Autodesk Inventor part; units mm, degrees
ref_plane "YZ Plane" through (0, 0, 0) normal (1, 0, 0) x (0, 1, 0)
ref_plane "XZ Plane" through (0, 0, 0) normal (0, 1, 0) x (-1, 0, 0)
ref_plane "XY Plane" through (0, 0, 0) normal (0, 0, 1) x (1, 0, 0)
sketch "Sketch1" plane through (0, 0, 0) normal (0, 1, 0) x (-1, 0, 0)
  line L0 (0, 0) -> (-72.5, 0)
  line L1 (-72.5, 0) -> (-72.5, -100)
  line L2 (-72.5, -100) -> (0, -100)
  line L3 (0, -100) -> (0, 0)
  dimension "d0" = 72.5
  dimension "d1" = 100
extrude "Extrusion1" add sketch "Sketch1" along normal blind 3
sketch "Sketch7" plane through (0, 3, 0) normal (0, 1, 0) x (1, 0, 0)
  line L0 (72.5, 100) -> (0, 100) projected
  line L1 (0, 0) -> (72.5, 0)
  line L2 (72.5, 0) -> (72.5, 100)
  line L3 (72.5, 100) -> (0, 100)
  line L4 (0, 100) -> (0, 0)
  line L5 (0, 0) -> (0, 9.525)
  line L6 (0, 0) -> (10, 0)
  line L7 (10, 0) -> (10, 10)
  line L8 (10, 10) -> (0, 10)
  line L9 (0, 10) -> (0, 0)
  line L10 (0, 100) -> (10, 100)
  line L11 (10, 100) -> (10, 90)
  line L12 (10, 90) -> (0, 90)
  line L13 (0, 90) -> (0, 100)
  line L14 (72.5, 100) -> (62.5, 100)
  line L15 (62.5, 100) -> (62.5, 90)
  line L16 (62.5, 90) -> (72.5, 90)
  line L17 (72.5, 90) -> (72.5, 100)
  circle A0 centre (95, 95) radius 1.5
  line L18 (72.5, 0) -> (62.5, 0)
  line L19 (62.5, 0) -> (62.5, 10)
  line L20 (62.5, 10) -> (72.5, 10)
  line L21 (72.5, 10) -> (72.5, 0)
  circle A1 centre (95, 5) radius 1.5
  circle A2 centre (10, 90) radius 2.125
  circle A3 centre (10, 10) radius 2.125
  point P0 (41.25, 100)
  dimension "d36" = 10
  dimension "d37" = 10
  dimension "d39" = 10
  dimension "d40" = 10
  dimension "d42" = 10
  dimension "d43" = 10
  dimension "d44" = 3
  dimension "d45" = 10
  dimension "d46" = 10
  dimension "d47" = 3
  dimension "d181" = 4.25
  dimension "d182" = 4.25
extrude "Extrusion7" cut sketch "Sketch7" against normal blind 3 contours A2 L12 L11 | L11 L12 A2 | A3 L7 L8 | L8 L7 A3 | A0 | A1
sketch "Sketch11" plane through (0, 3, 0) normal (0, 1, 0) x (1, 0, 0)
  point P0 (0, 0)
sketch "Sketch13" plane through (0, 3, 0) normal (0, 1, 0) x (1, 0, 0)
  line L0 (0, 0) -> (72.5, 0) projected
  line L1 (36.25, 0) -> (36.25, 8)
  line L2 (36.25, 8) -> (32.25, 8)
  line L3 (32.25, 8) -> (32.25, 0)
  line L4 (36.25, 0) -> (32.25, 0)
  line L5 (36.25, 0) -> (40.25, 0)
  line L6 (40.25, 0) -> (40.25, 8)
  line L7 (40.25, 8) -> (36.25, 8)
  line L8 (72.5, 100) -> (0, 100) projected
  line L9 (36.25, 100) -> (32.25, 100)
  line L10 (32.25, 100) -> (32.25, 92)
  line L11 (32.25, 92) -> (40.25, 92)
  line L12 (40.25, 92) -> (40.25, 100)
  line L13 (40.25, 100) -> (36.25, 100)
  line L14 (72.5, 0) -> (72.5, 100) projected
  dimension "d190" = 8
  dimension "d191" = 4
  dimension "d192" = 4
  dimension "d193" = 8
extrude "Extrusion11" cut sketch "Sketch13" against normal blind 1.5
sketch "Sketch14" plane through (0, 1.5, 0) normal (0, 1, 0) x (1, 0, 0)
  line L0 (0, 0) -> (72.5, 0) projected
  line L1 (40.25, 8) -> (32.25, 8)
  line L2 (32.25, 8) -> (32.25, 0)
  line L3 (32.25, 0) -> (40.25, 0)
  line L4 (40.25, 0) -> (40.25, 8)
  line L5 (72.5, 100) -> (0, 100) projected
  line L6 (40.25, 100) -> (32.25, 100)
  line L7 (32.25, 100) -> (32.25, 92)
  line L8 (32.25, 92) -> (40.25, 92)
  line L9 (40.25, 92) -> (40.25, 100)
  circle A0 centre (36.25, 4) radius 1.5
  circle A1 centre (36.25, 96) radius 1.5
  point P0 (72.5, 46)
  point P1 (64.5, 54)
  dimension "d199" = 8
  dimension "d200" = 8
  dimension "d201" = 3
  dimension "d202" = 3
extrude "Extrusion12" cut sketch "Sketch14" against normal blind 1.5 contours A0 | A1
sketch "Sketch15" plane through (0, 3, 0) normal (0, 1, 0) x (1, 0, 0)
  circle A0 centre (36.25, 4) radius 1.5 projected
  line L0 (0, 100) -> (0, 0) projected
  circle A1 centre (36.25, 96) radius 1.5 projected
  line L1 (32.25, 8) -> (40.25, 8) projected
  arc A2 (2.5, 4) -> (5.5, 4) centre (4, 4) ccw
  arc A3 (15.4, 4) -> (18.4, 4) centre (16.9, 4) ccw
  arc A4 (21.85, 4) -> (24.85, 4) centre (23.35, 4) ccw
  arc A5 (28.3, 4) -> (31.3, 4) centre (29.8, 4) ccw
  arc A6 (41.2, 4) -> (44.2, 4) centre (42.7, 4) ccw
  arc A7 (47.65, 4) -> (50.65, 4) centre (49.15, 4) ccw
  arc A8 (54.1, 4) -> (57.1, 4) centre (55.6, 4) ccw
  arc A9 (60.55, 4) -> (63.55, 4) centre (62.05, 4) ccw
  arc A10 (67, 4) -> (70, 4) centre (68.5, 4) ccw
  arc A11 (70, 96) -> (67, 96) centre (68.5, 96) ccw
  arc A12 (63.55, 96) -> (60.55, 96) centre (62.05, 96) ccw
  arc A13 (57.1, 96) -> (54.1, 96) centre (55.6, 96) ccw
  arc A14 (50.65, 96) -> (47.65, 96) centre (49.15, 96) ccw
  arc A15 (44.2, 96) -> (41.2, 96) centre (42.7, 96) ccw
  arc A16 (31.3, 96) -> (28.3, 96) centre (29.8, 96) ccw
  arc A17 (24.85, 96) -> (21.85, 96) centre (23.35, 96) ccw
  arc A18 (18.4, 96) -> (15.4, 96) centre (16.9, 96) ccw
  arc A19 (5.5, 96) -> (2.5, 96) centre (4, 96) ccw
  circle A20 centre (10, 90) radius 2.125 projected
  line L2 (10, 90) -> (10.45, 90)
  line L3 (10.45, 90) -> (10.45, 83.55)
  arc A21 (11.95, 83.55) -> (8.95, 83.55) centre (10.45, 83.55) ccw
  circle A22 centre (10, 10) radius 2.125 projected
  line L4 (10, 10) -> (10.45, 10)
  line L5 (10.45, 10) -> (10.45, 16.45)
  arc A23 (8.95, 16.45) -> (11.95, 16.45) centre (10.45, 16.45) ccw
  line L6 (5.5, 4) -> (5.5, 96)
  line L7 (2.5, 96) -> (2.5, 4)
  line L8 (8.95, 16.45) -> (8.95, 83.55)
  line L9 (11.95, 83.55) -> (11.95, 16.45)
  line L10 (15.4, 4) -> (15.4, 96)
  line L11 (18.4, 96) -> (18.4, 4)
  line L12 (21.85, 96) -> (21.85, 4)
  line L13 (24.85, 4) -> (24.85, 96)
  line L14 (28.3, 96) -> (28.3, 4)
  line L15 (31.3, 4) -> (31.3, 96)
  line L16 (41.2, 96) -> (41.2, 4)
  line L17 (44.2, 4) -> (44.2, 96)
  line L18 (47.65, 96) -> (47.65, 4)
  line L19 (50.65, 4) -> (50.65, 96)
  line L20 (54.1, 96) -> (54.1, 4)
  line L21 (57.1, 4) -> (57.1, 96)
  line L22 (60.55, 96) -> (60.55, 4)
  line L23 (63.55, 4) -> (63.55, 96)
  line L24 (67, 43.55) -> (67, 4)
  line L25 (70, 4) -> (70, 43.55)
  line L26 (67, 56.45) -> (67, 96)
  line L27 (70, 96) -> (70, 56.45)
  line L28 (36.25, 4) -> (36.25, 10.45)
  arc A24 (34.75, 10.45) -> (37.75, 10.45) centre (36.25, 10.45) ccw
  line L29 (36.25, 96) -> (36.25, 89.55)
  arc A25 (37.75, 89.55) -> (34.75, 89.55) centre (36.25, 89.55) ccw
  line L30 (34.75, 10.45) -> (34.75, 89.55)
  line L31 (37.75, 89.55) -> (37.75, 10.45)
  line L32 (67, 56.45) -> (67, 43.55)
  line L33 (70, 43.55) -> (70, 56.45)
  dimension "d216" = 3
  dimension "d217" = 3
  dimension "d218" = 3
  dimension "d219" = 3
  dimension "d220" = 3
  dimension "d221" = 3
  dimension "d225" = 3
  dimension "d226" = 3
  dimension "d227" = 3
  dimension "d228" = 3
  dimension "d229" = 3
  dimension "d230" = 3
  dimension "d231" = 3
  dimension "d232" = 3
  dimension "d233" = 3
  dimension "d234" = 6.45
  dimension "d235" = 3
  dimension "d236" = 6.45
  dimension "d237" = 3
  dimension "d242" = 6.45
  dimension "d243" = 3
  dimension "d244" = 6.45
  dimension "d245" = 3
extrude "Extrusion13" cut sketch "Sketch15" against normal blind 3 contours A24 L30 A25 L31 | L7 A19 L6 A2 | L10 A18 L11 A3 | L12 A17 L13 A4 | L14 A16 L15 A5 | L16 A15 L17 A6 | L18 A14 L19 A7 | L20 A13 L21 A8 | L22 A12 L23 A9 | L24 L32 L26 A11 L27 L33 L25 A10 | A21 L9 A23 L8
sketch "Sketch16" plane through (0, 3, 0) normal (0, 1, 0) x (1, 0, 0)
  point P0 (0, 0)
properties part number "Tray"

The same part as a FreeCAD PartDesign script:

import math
import FreeCAD as App
import Part
import Sketcher

V = App.Vector
Q = App.Units.Quantity

doc = App.newDocument("Part")
body = doc.addObject("PartDesign::Body", "Body")

sketch1 = body.newObject("Sketcher::SketchObject", "Sketch")
sketch1.AttachmentSupport = (doc.getObject("XZ_Plane"), [""])
sketch1.MapMode = "FlatFace"
sketch1.addGeometry([
    Part.LineSegment(V(0, -100, 0), V(0, 0, 0)),
    Part.LineSegment(V(0, 0, 0), V(72, 0, 0)),
    Part.LineSegment(V(72, 0, 0), V(72, -100, 0)),
    Part.LineSegment(V(72, -100, 0), V(0, -100, 0)),
], False)
sketch1.addConstraint([
    Sketcher.Constraint("Coincident", 0, 2, 1, 1),
    Sketcher.Constraint("Coincident", 1, 2, 2, 1),
    Sketcher.Constraint("Coincident", 2, 2, 3, 1),
    Sketcher.Constraint("Coincident", 3, 2, 0, 1),
    Sketcher.Constraint("Vertical", 0),
    Sketcher.Constraint("Horizontal", 1),
    Sketcher.Constraint("Vertical", 2),
    Sketcher.Constraint("Horizontal", 3),
    Sketcher.Constraint("Coincident", 0, 2, -1, 1),
    Sketcher.Constraint("DistanceY", 0, 1, 0, 2, Q("100 mm")),
    Sketcher.Constraint("DistanceX", 1, 1, 1, 2, Q("72.5 mm")),
])
pad1 = body.newObject("PartDesign::Pad", "Pad")
pad1.Profile = sketch1
pad1.Length = 3
pad1.Reversed = True

sketch2 = body.newObject("Sketcher::SketchObject", "Sketch001")
sketch2.AttachmentSupport = (doc.getObject("XZ_Plane"), [""])
sketch2.MapMode = "FlatFace"
sketch2.AttachmentOffset = App.Placement(V(0, 0, -3), App.Rotation())
sketch2.addGeometry([
    Part.Circle(V(10, -90, 0), V(0, 0, 1), 2.1),
    Part.Circle(V(10, -10, 0), V(0, 0, 1), 2.1),
    Part.Circle(V(95, -95, 0), V(0, 0, 1), 1.5),
    Part.Circle(V(95, -5, 0), V(0, 0, 1), 1.5),
], False)
sketch2.addConstraint([
    Sketcher.Constraint("Equal", 0, 1),
    Sketcher.Constraint("Equal", 2, 3),
    Sketcher.Constraint("Vertical", 0, 3, 1, 3),
    Sketcher.Constraint("Vertical", 2, 3, 3, 3),
    Sketcher.Constraint("Diameter", 2, Q("3 mm")),
    Sketcher.Constraint("Diameter", 0, Q("4.25 mm")),
    Sketcher.Constraint("DistanceX", -1, 1, 0, 3, Q("10 mm")),
    Sketcher.Constraint("DistanceY", 1, 3, -1, 1, Q("10 mm")),
    Sketcher.Constraint("DistanceY", 0, 3, -1, 1, Q("90 mm")),
    Sketcher.Constraint("DistanceX", -1, 1, 2, 3, Q("95 mm")),
    Sketcher.Constraint("DistanceY", 2, 3, -1, 1, Q("95 mm")),
    Sketcher.Constraint("DistanceY", 3, 3, -1, 1, Q("5 mm")),
])
pocket1 = body.newObject("PartDesign::Pocket", "Pocket")
pocket1.Profile = sketch2
pocket1.Length = 3
pocket1.Reversed = True

sketch3 = body.newObject("Sketcher::SketchObject", "Sketch002")
sketch3.AttachmentSupport = (doc.getObject("XZ_Plane"), [""])
sketch3.MapMode = "FlatFace"
sketch3.AttachmentOffset = App.Placement(V(0, 0, -3), App.Rotation())
sketch3.addGeometry([
    Part.LineSegment(V(32, -8, 0), V(32, 0, 0)),
    Part.LineSegment(V(32, 0, 0), V(40, 0, 0)),
    Part.LineSegment(V(40, 0, 0), V(40, -8, 0)),
    Part.LineSegment(V(40, -8, 0), V(32, -8, 0)),
    Part.LineSegment(V(40, -92, 0), V(40, -100, 0)),
    Part.LineSegment(V(40, -100, 0), V(32, -100, 0)),
    Part.LineSegment(V(32, -100, 0), V(32, -92, 0)),
    Part.LineSegment(V(32, -92, 0), V(40, -92, 0)),
], False)
sketch3.addConstraint([
    Sketcher.Constraint("Coincident", 0, 2, 1, 1),
    Sketcher.Constraint("Coincident", 1, 2, 2, 1),
    Sketcher.Constraint("Coincident", 2, 2, 3, 1),
    Sketcher.Constraint("Coincident", 3, 2, 0, 1),
    Sketcher.Constraint("Coincident", 4, 2, 5, 1),
    Sketcher.Constraint("Coincident", 5, 2, 6, 1),
    Sketcher.Constraint("Coincident", 6, 2, 7, 1),
    Sketcher.Constraint("Coincident", 7, 2, 4, 1),
    Sketcher.Constraint("Vertical", 0),
    Sketcher.Constraint("Horizontal", 1),
    Sketcher.Constraint("Vertical", 2),
    Sketcher.Constraint("Horizontal", 3),
    Sketcher.Constraint("Vertical", 4),
    Sketcher.Constraint("Horizontal", 5),
    Sketcher.Constraint("Vertical", 6),
    Sketcher.Constraint("Horizontal", 7),
    Sketcher.Constraint("PointOnObject", 0, 2, -1),
    Sketcher.Constraint("Vertical", 2, 2, 4, 2),
    Sketcher.Constraint("Vertical", 3, 2, 5, 2),
    Sketcher.Constraint("Equal", 7, 0),
    Sketcher.Constraint("Equal", 2, 4),
    Sketcher.Constraint("DistanceX", 1, 1, 1, 2, Q("8 mm")),
    Sketcher.Constraint("DistanceY", 4, 2, -1, 1, Q("100 mm")),
    Sketcher.Constraint("DistanceX", -1, 1, 0, 2, Q("32.25 mm")),
])
pocket2 = body.newObject("PartDesign::Pocket", "Pocket001")
pocket2.Profile = sketch3
pocket2.Length = 1.5
pocket2.Reversed = True

sketch4 = body.newObject("Sketcher::SketchObject", "Sketch003")
sketch4.AttachmentSupport = (doc.getObject("XZ_Plane"), [""])
sketch4.MapMode = "FlatFace"
sketch4.AttachmentOffset = App.Placement(V(0, 0, -1.5), App.Rotation())
sketch4.addGeometry([
    Part.Circle(V(36.2, -4, 0), V(0, 0, 1), 1.5),
    Part.Circle(V(36.2, -96, 0), V(0, 0, 1), 1.5),
], False)
sketch4.addConstraint([
    Sketcher.Constraint("Equal", 0, 1),
    Sketcher.Constraint("Vertical", 0, 3, 1, 3),
    Sketcher.Constraint("Diameter", 0, Q("3 mm")),
    Sketcher.Constraint("DistanceY", 0, 3, -1, 1, Q("4 mm")),
    Sketcher.Constraint("DistanceY", 1, 3, -1, 1, Q("96 mm")),
    Sketcher.Constraint("DistanceX", -1, 1, 0, 3, Q("36.25 mm")),
])
pocket3 = body.newObject("PartDesign::Pocket", "Pocket002")
pocket3.Profile = sketch4
pocket3.Length = 1.5
pocket3.Reversed = True

sketch5 = body.newObject("Sketcher::SketchObject", "Sketch004")
sketch5.AttachmentSupport = (doc.getObject("XZ_Plane"), [""])
sketch5.MapMode = "FlatFace"
sketch5.AttachmentOffset = App.Placement(V(0, 0, -3), App.Rotation())
sketch5.addGeometry([
    Part.ArcOfCircle(Part.Circle(V(36.2, -10.4, 0), V(0, 0, 1), 1.5), math.radians(0), math.radians(180)),
    Part.LineSegment(V(37.8, -10.4, 0), V(37.8, -89.5, 0)),
    Part.ArcOfCircle(Part.Circle(V(36.2, -89.5, 0), V(0, 0, 1), 1.5), math.radians(180), math.radians(360)),
    Part.LineSegment(V(34.8, -89.5, 0), V(34.8, -10.4, 0)),
    Part.LineSegment(V(2.5, -96, 0), V(2.5, -4, 0)),
    Part.ArcOfCircle(Part.Circle(V(4, -4, 0), V(0, 0, 1), 1.5), math.radians(0), math.radians(180)),
    Part.LineSegment(V(5.5, -4, 0), V(5.5, -96, 0)),
    Part.ArcOfCircle(Part.Circle(V(4, -96, 0), V(0, 0, 1), 1.5), math.radians(180), math.radians(360)),
    Part.LineSegment(V(15.4, -96, 0), V(15.4, -4, 0)),
    Part.ArcOfCircle(Part.Circle(V(16.9, -4, 0), V(0, 0, 1), 1.5), math.radians(0), math.radians(180)),
    Part.LineSegment(V(18.4, -4, 0), V(18.4, -96, 0)),
    Part.ArcOfCircle(Part.Circle(V(16.9, -96, 0), V(0, 0, 1), 1.5), math.radians(180), math.radians(360)),
    Part.LineSegment(V(21.9, -96, 0), V(21.9, -4, 0)),
    Part.ArcOfCircle(Part.Circle(V(23.4, -4, 0), V(0, 0, 1), 1.5), math.radians(0), math.radians(180)),
    Part.LineSegment(V(24.9, -4, 0), V(24.9, -96, 0)),
    Part.ArcOfCircle(Part.Circle(V(23.4, -96, 0), V(0, 0, 1), 1.5), math.radians(180), math.radians(360)),
    Part.LineSegment(V(28.3, -96, 0), V(28.3, -4, 0)),
    Part.ArcOfCircle(Part.Circle(V(29.8, -4, 0), V(0, 0, 1), 1.5), math.radians(0), math.radians(180)),
    Part.LineSegment(V(31.3, -4, 0), V(31.3, -96, 0)),
    Part.ArcOfCircle(Part.Circle(V(29.8, -96, 0), V(0, 0, 1), 1.5), math.radians(180), math.radians(360)),
    Part.LineSegment(V(41.2, -96, 0), V(41.2, -4, 0)),
    Part.ArcOfCircle(Part.Circle(V(42.7, -4, 0), V(0, 0, 1), 1.5), math.radians(0), math.radians(180)),
    Part.LineSegment(V(44.2, -4, 0), V(44.2, -96, 0)),
    Part.ArcOfCircle(Part.Circle(V(42.7, -96, 0), V(0, 0, 1), 1.5), math.radians(180), math.radians(360)),
    Part.LineSegment(V(47.6, -96, 0), V(47.6, -4, 0)),
    Part.ArcOfCircle(Part.Circle(V(49.1, -4, 0), V(0, 0, 1), 1.5), math.radians(0), math.radians(180)),
    Part.LineSegment(V(50.6, -4, 0), V(50.6, -96, 0)),
    Part.ArcOfCircle(Part.Circle(V(49.1, -96, 0), V(0, 0, 1), 1.5), math.radians(180), math.radians(360)),
    Part.LineSegment(V(54.1, -96, 0), V(54.1, -4, 0)),
    Part.ArcOfCircle(Part.Circle(V(55.6, -4, 0), V(0, 0, 1), 1.5), math.radians(0), math.radians(180)),
    Part.LineSegment(V(57.1, -4, 0), V(57.1, -96, 0)),
    Part.ArcOfCircle(Part.Circle(V(55.6, -96, 0), V(0, 0, 1), 1.5), math.radians(180), math.radians(360)),
    Part.LineSegment(V(60.5, -96, 0), V(60.5, -4, 0)),
    Part.ArcOfCircle(Part.Circle(V(62, -4, 0), V(0, 0, 1), 1.5), math.radians(0), math.radians(180)),
    Part.LineSegment(V(63.5, -4, 0), V(63.5, -96, 0)),
    Part.ArcOfCircle(Part.Circle(V(62, -96, 0), V(0, 0, 1), 1.5), math.radians(180), math.radians(360)),
    Part.LineSegment(V(67, -96, 0), V(67, -4, 0)),
    Part.ArcOfCircle(Part.Circle(V(68.5, -4, 0), V(0, 0, 1), 1.5), math.radians(0), math.radians(180)),
    Part.LineSegment(V(70, -4, 0), V(70, -96, 0)),
    Part.ArcOfCircle(Part.Circle(V(68.5, -96, 0), V(0, 0, 1), 1.5), math.radians(180), math.radians(360)),
    Part.ArcOfCircle(Part.Circle(V(10.4, -83.5, 0), V(0, 0, 1), 1.5), math.radians(180), math.radians(360)),
    Part.LineSegment(V(8.9, -83.5, 0), V(8.9, -16.4, 0)),
    Part.ArcOfCircle(Part.Circle(V(10.4, -16.4, 0), V(0, 0, 1), 1.5), math.radians(0), math.radians(180)),
    Part.LineSegment(V(11.9, -16.4, 0), V(11.9, -83.5, 0)),
], False)
sketch5.addConstraint([
    Sketcher.Constraint("Tangent", 0, 1, 1, 1),
    Sketcher.Constraint("Tangent", 1, 2, 2, 2),
    Sketcher.Constraint("Tangent", 2, 1, 3, 1),
    Sketcher.Constraint("Tangent", 3, 2, 0, 2),
    Sketcher.Constraint("Tangent", 4, 2, 5, 2),
    Sketcher.Constraint("Tangent", 5, 1, 6, 1),
    Sketcher.Constraint("Tangent", 6, 2, 7, 2),
    Sketcher.Constraint("Tangent", 7, 1, 4, 1),
    Sketcher.Constraint("Tangent", 8, 2, 9, 2),
    Sketcher.Constraint("Tangent", 9, 1, 10, 1),
    Sketcher.Constraint("Tangent", 10, 2, 11, 2),
    Sketcher.Constraint("Tangent", 11, 1, 8, 1),
    Sketcher.Constraint("Tangent", 12, 2, 13, 2),
    Sketcher.Constraint("Tangent", 13, 1, 14, 1),
    Sketcher.Constraint("Tangent", 14, 2, 15, 2),
    Sketcher.Constraint("Tangent", 15, 1, 12, 1),
    Sketcher.Constraint("Tangent", 16, 2, 17, 2),
    Sketcher.Constraint("Tangent", 17, 1, 18, 1),
    Sketcher.Constraint("Tangent", 18, 2, 19, 2),
    Sketcher.Constraint("Tangent", 19, 1, 16, 1),
    Sketcher.Constraint("Tangent", 20, 2, 21, 2),
    Sketcher.Constraint("Tangent", 21, 1, 22, 1),
    Sketcher.Constraint("Tangent", 22, 2, 23, 2),
    Sketcher.Constraint("Tangent", 23, 1, 20, 1),
    Sketcher.Constraint("Tangent", 24, 2, 25, 2),
    Sketcher.Constraint("Tangent", 25, 1, 26, 1),
    Sketcher.Constraint("Tangent", 26, 2, 27, 2),
    Sketcher.Constraint("Tangent", 27, 1, 24, 1),
    Sketcher.Constraint("Tangent", 28, 2, 29, 2),
    Sketcher.Constraint("Tangent", 29, 1, 30, 1),
    Sketcher.Constraint("Tangent", 30, 2, 31, 2),
    Sketcher.Constraint("Tangent", 31, 1, 28, 1),
    Sketcher.Constraint("Tangent", 32, 2, 33, 2),
    Sketcher.Constraint("Tangent", 33, 1, 34, 1),
    Sketcher.Constraint("Tangent", 34, 2, 35, 2),
    Sketcher.Constraint("Tangent", 35, 1, 32, 1),
    Sketcher.Constraint("Tangent", 36, 2, 37, 2),
    Sketcher.Constraint("Tangent", 37, 1, 38, 1),
    Sketcher.Constraint("Tangent", 38, 2, 39, 2),
    Sketcher.Constraint("Tangent", 39, 1, 36, 1),
    Sketcher.Constraint("Tangent", 40, 1, 41, 1),
    Sketcher.Constraint("Tangent", 41, 2, 42, 2),
    Sketcher.Constraint("Tangent", 42, 1, 43, 1),
    Sketcher.Constraint("Tangent", 43, 2, 40, 2),
    Sketcher.Constraint("Vertical", 1),
    Sketcher.Constraint("Vertical", 3),
    Sketcher.Constraint("Vertical", 4),
    Sketcher.Constraint("Vertical", 6),
    Sketcher.Constraint("Vertical", 8),
    Sketcher.Constraint("Vertical", 10),
    Sketcher.Constraint("Vertical", 12),
    Sketcher.Constraint("Vertical", 14),
    Sketcher.Constraint("Vertical", 16),
    Sketcher.Constraint("Vertical", 18),
    Sketcher.Constraint("Vertical", 20),
    Sketcher.Constraint("Vertical", 22),
    Sketcher.Constraint("Vertical", 24),
    Sketcher.Constraint("Vertical", 26),
    Sketcher.Constraint("Vertical", 28),
    Sketcher.Constraint("Vertical", 30),
    Sketcher.Constraint("Vertical", 32),
    Sketcher.Constraint("Vertical", 34),
    Sketcher.Constraint("Vertical", 36),
    Sketcher.Constraint("Vertical", 38),
    Sketcher.Constraint("Vertical", 41),
    Sketcher.Constraint("Vertical", 43),
    Sketcher.Constraint("Equal", 2, 5),
    Sketcher.Constraint("Equal", 7, 9),
    Sketcher.Constraint("Equal", 11, 13),
    Sketcher.Constraint("Equal", 15, 17),
    Sketcher.Constraint("Equal", 19, 21),
    Sketcher.Constraint("Equal", 23, 25),
    Sketcher.Constraint("Equal", 27, 29),
    Sketcher.Constraint("Equal", 31, 33),
    Sketcher.Constraint("Equal", 35, 37),
    Sketcher.Constraint("Equal", 39, 40),
    Sketcher.Constraint("Horizontal", 5, 3, 9, 3),
    Sketcher.Constraint("Horizontal", 7, 3, 11, 3),
    Sketcher.Constraint("Horizontal", 9, 3, 13, 3),
    Sketcher.Constraint("Horizontal", 11, 3, 15, 3),
    Sketcher.Constraint("Horizontal", 13, 3, 17, 3),
    Sketcher.Constraint("Horizontal", 15, 3, 19, 3),
    Sketcher.Constraint("Horizontal", 17, 3, 21, 3),
    Sketcher.Constraint("Horizontal", 19, 3, 23, 3),
    Sketcher.Constraint("Horizontal", 21, 3, 25, 3),
    Sketcher.Constraint("Horizontal", 23, 3, 27, 3),
    Sketcher.Constraint("Horizontal", 25, 3, 29, 3),
    Sketcher.Constraint("Horizontal", 27, 3, 31, 3),
    Sketcher.Constraint("Horizontal", 29, 3, 33, 3),
    Sketcher.Constraint("Horizontal", 31, 3, 35, 3),
    Sketcher.Constraint("Horizontal", 33, 3, 37, 3),
    Sketcher.Constraint("Horizontal", 35, 3, 39, 3),
    Sketcher.Constraint("Radius", 0, Q("1.5 mm")),
    Sketcher.Constraint("DistanceY", 4, 1, 4, 2, Q("92 mm")),
    Sketcher.Constraint("DistanceY", 1, 2, 1, 1, Q("79.1 mm")),
    Sketcher.Constraint("DistanceY", 41, 1, 41, 2, Q("67.1 mm")),
    Sketcher.Constraint("DistanceX", -1, 1, 5, 3, Q("4 mm")),
    Sketcher.Constraint("DistanceY", 5, 3, -1, 1, Q("4 mm")),
    Sketcher.Constraint("DistanceX", -1, 1, 36, 2, Q("67 mm")),
    Sketcher.Constraint("DistanceX", -1, 1, 9, 3, Q("16.9 mm")),
    Sketcher.Constraint("DistanceX", -1, 1, 17, 3, Q("29.8 mm")),
    Sketcher.Constraint("DistanceX", -1, 1, 21, 3, Q("42.7 mm")),
    Sketcher.Constraint("DistanceX", -1, 1, 29, 3, Q("55.6 mm")),
    Sketcher.Constraint("DistanceX", -1, 1, 0, 3, Q("36.25 mm")),
    Sketcher.Constraint("DistanceY", 0, 3, -1, 1, Q("10.45 mm")),
    Sketcher.Constraint("DistanceX", -1, 1, 13, 3, Q("23.35 mm")),
    Sketcher.Constraint("DistanceX", -1, 1, 25, 3, Q("49.15 mm")),
    Sketcher.Constraint("DistanceX", -1, 1, 33, 3, Q("62.05 mm")),
    Sketcher.Constraint("DistanceX", -1, 1, 40, 3, Q("10.45 mm")),
    Sketcher.Constraint("DistanceY", 40, 3, -1, 1, Q("83.55 mm")),
])
pocket4 = body.newObject("PartDesign::Pocket", "Pocket003")
pocket4.Profile = sketch5
pocket4.Length = 3
pocket4.Reversed = True

doc.recompute()
